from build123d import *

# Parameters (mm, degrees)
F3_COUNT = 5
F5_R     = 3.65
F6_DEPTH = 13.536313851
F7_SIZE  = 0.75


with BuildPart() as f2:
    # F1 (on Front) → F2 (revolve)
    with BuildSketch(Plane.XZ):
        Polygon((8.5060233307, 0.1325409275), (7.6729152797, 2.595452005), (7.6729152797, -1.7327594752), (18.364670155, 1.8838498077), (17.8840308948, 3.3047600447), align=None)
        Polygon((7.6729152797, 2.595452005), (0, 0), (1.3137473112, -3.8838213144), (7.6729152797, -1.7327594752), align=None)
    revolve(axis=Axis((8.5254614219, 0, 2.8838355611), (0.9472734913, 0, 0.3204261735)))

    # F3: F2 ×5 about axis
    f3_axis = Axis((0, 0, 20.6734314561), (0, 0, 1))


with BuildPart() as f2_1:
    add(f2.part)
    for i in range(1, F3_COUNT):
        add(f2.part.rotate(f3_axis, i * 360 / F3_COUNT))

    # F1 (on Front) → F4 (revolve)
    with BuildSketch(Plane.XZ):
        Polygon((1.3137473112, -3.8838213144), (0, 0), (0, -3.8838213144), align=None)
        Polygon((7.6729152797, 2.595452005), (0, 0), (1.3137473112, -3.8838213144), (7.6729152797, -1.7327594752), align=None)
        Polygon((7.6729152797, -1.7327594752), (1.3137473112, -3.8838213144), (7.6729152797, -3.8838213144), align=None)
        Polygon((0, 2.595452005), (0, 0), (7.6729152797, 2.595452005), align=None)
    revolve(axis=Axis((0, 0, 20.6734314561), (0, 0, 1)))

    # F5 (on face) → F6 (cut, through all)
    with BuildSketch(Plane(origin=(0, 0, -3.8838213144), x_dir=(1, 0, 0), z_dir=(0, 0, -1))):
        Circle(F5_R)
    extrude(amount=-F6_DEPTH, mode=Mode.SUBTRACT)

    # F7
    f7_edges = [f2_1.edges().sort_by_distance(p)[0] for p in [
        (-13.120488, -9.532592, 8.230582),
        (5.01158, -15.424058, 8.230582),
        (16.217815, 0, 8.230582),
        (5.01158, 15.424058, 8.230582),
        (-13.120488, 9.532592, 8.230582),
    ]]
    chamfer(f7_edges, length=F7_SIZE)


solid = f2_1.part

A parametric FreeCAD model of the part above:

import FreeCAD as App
import Part
import Sketcher

V = App.Vector
Q = App.Units.Quantity


def edges_at(feature, points):
    """Names of the edges that pass closest to the given points."""
    edges = feature.Shape.Edges
    near = lambda p: min(range(len(edges)), key=lambda i: edges[i].distToShape(Part.Vertex(*p))[0])
    return sorted({f"Edge{near(p) + 1}" for p in points})

doc = App.newDocument("Part")
params = doc.addObject("Spreadsheet::Sheet", "Params")
for row, (alias, value) in enumerate([
    ("sketch1_length", "18 mm"),
    ("sketch1_length2", "2.6 mm"),
    ("sketch1_length3", "8.1 mm"),
    ("sketch1_length4", "4.1 mm"),
    ("revolution_angle", "360 deg"),
    ("revolution2_angle", "360 deg"),
    ("sketch3_diameter", "7.3 mm"),
    ("chamfer_size", "0.75 mm"),
], start=1):
    params.set(f"A{row}", alias)
    params.set(f"B{row}", "=" + value)
    params.setAlias(f"B{row}", alias)

body = doc.addObject("PartDesign::Body", "Body")

sketch1 = body.newObject("Sketcher::SketchObject", "Sketch")
sketch1.AttachmentSupport = (doc.getObject("XZ_Plane"), [""])
sketch1.MapMode = "FlatFace"
sketch1.addGeometry(Part.LineSegment(V(8.5, 0.1, 0), V(7.7, 2.6, 0)), False)
sketch1.addGeometry(Part.LineSegment(V(7.7, 2.6, 0), V(0, 0, 0)), False)
sketch1.addGeometry(Part.LineSegment(V(0, 0, 0), V(1.3, -3.9, 0)), False)
sketch1.addGeometry(Part.LineSegment(V(1.3, -3.9, 0), V(18.4, 1.9, 0)), False)
sketch1.addGeometry(Part.LineSegment(V(18.4, 1.9, 0), V(17.9, 3.3, 0)), False)
sketch1.addGeometry(Part.LineSegment(V(17.9, 3.3, 0), V(8.5, 0.1, 0)), False)
sketch1.addGeometry(Part.LineSegment(V(0, 0, 0), V(17.1, 5.8, 0)), True)
sketch1.addConstraint(Sketcher.Constraint("Coincident", 0, 2, 1, 1))
sketch1.addConstraint(Sketcher.Constraint("Coincident", 1, 2, 2, 1))
sketch1.addConstraint(Sketcher.Constraint("Coincident", 2, 2, 3, 1))
sketch1.addConstraint(Sketcher.Constraint("Coincident", 3, 2, 4, 1))
sketch1.addConstraint(Sketcher.Constraint("Coincident", 4, 2, 5, 1))
sketch1.addConstraint(Sketcher.Constraint("Coincident", 5, 2, 0, 1))
sketch1.addConstraint(Sketcher.Constraint("Coincident", 1, 2, -1, 1))
sketch1.addConstraint(Sketcher.Constraint("Coincident", 6, 1, -1, 1))
sketch1.addConstraint(Sketcher.Constraint("Perpendicular", 0, 1))
sketch1.addConstraint(Sketcher.Constraint("Perpendicular", 1, 2))
sketch1.addConstraint(Sketcher.Constraint("Perpendicular", 2, 3))
sketch1.addConstraint(Sketcher.Constraint("Perpendicular", 3, 4))
sketch1.addConstraint(Sketcher.Constraint("Perpendicular", 4, 5))
sketch1.addConstraint(Sketcher.Constraint("Parallel", 5, 6))
sketch1.addConstraint(Sketcher.Constraint("Equal", 3, 6))
sketch1.addConstraint(Sketcher.Constraint("Distance", 3, Q("18 mm")))
sketch1.addConstraint(Sketcher.Constraint("Distance", 0, Q("2.6 mm")))
sketch1.addConstraint(Sketcher.Constraint("Distance", 1, Q("8.1 mm")))
sketch1.addConstraint(Sketcher.Constraint("Distance", 2, Q("4.1 mm")))
sketch1.addConstraint(Sketcher.Constraint("DistanceX", 5, 2, 6, 2, Q("8.5449 mm")))
sketch1.setExpression("Constraints[15]", "Params.sketch1_length")
sketch1.setExpression("Constraints[16]", "Params.sketch1_length2")
sketch1.setExpression("Constraints[17]", "Params.sketch1_length3")
sketch1.setExpression("Constraints[18]", "Params.sketch1_length4")
revolution = body.newObject("PartDesign::Revolution", "Revolution")
revolution.Profile = sketch1
revolution.ReferenceAxis = (sketch1, ["Axis0"])
revolution.setExpression("Angle", "Params.revolution_angle")
body2 = doc.addObject("PartDesign::Body", "Body001")
doc.recompute()

body2.BaseFeature = body
doc.recompute()

body3 = doc.addObject("PartDesign::Body", "Body002")
body3.BaseFeature = body
body3.Placement = App.Placement(V(0, 0, 0), App.Rotation(V(0, 0, 1), 72))
boolean = body2.newObject("PartDesign::Boolean", "Boolean")
boolean.Type = "Fuse"
boolean.addObjects([body3])
doc.recompute()

body4 = doc.addObject("PartDesign::Body", "Body003")
body4.BaseFeature = body
body4.Placement = App.Placement(V(0, 0, 0), App.Rotation(V(0, 0, 1), 144))
boolean2 = body2.newObject("PartDesign::Boolean", "Boolean001")
boolean2.Type = "Fuse"
boolean2.addObjects([body4])
doc.recompute()

body5 = doc.addObject("PartDesign::Body", "Body004")
body5.BaseFeature = body
body5.Placement = App.Placement(V(0, 0, 0), App.Rotation(V(0, 0, 1), 216))
boolean3 = body2.newObject("PartDesign::Boolean", "Boolean002")
boolean3.Type = "Fuse"
boolean3.addObjects([body5])
doc.recompute()

body.Placement = App.Placement(V(0, 0, 0), App.Rotation(V(0, 0, 1), 288))
boolean4 = body2.newObject("PartDesign::Boolean", "Boolean003")
boolean4.Type = "Fuse"
boolean4.addObjects([body])

sketch2 = body2.newObject("Sketcher::SketchObject", "Sketch001")
sketch2.AttachmentSupport = (doc.getObject("XZ_Plane001"), [""])
sketch2.MapMode = "FlatFace"
sketch2.addGeometry(Part.LineSegment(V(0, -4, 0), V(8, -4, 0)), False)
sketch2.addGeometry(Part.LineSegment(V(8, -4, 0), V(8, 3, 0)), False)
sketch2.addGeometry(Part.LineSegment(V(8, 3, 0), V(0, 3, 0)), False)
sketch2.addGeometry(Part.LineSegment(V(0, 3, 0), V(0, -4, 0)), False)
sketch2.addConstraint(Sketcher.Constraint("Coincident", 0, 2, 1, 1))
sketch2.addConstraint(Sketcher.Constraint("Coincident", 1, 2, 2, 1))
sketch2.addConstraint(Sketcher.Constraint("Coincident", 2, 2, 3, 1))
sketch2.addConstraint(Sketcher.Constraint("Coincident", 3, 2, 0, 1))
sketch2.addConstraint(Sketcher.Constraint("Horizontal", 0))
sketch2.addConstraint(Sketcher.Constraint("Vertical", 1))
sketch2.addConstraint(Sketcher.Constraint("Horizontal", 2))
sketch2.addConstraint(Sketcher.Constraint("Vertical", 3))
sketch2.addConstraint(Sketcher.Constraint("PointOnObject", 2, 2, -2))
sketch2.addConstraint(Sketcher.Constraint("DistanceX", 0, 1, 0, 2, Q("7.672915 mm")))
sketch2.addConstraint(Sketcher.Constraint("DistanceY", 1, 1, 1, 2, Q("6.479273 mm")))
sketch2.addConstraint(Sketcher.Constraint("DistanceY", 0, 2, -1, 1, Q("3.883821 mm")))
revolution2 = body2.newObject("PartDesign::Revolution", "Revolution001")
revolution2.Profile = sketch2
revolution2.ReferenceAxis = (sketch2, ["V_Axis"])
revolution2.setExpression("Angle", "Params.revolution2_angle")

sketch3 = body2.newObject("Sketcher::SketchObject", "Sketch002")
sketch3.AttachmentSupport = (doc.getObject("XY_Plane001"), [""])
sketch3.MapMode = "FlatFace"
sketch3.AttachmentOffset = App.Placement(V(0, 0, -3.883821), App.Rotation())
sketch3.addGeometry(Part.Circle(V(0, 0, 0), V(0, 0, 1), 3.6), False)
sketch3.addConstraint(Sketcher.Constraint("Coincident", 0, 3, -1, 1))
sketch3.addConstraint(Sketcher.Constraint("Diameter", 0, Q("7.3 mm")))
sketch3.setExpression("Constraints[1]", "Params.sketch3_diameter")
pocket1 = body2.newObject("PartDesign::Pocket", "Pocket")
pocket1.Profile = sketch3
pocket1.Type = "ThroughAll"
pocket1.Reversed = True
doc.recompute()

chamfer = body2.newObject("PartDesign::Chamfer", "Chamfer")
chamfer.Base = (pocket1, edges_at(pocket1, [
    (-13.12, -9.533, 8.231),
    (5.012, -15.424, 8.231),
    (16.218, 0, 8.231),
    (5.012, 15.424, 8.231),
    (-13.12, 9.533, 8.231),
]))
chamfer.setExpression("Size", "Params.chamfer_size")

doc.recompute()
